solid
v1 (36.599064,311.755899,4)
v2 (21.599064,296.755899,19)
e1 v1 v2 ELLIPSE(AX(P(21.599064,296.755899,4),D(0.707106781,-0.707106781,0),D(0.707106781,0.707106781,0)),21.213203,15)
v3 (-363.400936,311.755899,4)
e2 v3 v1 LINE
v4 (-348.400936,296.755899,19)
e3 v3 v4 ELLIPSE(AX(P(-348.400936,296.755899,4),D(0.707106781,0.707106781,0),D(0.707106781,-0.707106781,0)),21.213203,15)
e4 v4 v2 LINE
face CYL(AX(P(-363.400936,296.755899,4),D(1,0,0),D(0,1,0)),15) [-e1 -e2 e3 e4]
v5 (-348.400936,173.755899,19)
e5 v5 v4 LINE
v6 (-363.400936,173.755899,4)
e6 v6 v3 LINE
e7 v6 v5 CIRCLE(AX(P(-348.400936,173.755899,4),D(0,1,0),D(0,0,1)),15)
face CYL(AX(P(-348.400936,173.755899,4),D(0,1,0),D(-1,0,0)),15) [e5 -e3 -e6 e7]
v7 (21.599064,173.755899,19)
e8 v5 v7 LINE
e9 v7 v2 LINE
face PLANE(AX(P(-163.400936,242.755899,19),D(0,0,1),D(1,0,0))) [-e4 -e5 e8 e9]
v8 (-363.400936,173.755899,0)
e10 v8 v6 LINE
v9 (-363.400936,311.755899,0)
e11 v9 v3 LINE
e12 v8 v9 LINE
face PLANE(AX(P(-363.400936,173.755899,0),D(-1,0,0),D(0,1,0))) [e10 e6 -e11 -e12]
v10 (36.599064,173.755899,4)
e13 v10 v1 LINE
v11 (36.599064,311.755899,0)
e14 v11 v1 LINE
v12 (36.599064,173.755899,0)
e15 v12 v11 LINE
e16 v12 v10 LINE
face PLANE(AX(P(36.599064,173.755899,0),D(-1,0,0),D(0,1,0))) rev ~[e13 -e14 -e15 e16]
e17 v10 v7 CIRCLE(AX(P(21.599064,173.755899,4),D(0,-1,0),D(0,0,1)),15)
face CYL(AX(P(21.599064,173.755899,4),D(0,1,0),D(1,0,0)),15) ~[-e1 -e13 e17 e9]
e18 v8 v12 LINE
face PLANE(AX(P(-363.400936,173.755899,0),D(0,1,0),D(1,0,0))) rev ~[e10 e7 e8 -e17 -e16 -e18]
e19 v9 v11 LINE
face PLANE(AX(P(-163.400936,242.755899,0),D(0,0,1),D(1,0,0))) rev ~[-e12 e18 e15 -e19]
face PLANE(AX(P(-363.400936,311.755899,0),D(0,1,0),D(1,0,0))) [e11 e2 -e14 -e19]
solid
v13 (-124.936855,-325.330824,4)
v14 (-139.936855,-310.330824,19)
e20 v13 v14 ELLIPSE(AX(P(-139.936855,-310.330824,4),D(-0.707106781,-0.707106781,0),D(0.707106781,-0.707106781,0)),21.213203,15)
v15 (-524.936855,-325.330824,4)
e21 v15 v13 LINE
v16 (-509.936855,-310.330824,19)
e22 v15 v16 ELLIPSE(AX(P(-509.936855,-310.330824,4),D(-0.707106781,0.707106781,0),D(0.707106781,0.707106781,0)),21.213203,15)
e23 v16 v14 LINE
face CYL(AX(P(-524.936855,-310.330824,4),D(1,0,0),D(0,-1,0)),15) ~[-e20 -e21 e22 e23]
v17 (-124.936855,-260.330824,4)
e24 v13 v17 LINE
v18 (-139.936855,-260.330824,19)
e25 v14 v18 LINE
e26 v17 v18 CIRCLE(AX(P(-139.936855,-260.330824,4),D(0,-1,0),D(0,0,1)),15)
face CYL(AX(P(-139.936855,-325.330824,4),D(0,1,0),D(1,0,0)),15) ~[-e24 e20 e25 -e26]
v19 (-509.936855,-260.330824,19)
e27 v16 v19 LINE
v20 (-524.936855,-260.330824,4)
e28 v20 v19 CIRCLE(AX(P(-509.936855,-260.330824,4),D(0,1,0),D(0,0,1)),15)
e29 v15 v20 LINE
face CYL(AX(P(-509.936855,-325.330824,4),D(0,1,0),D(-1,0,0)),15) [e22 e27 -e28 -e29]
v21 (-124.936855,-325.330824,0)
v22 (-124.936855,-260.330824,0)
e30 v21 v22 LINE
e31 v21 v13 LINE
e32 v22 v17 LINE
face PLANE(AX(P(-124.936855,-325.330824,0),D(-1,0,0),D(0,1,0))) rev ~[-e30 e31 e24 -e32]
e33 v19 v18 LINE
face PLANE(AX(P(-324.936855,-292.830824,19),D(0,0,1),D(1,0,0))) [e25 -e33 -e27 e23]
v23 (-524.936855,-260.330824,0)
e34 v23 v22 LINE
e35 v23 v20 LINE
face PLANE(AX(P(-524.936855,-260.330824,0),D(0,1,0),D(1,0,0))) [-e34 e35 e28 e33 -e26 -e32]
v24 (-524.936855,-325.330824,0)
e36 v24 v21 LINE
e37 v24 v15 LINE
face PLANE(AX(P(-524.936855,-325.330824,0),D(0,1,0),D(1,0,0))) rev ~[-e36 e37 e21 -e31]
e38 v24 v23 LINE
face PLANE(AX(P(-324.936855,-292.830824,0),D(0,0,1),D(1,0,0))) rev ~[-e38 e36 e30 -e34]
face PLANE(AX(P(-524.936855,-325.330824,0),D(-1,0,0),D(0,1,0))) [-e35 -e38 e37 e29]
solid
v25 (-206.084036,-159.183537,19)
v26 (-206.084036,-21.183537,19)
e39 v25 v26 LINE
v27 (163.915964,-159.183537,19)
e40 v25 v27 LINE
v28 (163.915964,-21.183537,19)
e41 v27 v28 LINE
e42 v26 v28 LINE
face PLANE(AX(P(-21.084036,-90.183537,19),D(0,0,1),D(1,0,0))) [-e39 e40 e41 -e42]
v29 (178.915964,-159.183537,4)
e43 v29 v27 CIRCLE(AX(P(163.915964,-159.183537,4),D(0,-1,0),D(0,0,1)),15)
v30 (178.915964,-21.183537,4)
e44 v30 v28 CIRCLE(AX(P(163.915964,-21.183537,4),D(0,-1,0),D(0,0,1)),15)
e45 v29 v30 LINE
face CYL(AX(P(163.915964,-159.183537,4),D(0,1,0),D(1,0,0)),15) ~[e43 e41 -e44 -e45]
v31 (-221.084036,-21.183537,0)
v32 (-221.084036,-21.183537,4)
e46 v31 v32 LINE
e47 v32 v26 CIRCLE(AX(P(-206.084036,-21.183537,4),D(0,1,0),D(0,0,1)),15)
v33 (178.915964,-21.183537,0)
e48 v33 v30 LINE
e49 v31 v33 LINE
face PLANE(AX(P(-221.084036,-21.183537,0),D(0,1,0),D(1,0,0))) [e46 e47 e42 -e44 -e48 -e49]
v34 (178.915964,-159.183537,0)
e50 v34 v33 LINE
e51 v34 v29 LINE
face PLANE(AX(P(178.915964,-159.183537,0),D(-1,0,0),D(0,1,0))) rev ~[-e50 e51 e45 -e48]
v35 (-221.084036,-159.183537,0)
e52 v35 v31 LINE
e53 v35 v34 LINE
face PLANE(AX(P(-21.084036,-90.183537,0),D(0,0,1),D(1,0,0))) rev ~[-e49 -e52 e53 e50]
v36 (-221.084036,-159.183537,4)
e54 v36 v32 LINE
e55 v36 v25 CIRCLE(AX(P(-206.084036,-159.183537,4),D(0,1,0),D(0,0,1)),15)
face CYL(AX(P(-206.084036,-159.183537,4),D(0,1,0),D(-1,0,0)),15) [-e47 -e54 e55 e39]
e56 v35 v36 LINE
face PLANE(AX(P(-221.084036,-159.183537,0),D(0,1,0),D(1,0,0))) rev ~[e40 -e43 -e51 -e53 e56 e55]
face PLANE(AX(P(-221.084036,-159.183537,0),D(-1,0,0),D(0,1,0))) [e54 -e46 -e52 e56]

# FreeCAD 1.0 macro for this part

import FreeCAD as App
import Part
import Sketcher
from FreeCAD import Vector
Q = App.Units.Quantity


def edges_at(feature, points):
    """Names of the edges that pass closest to the given points."""
    edges = feature.Shape.Edges
    near = lambda p: min(range(len(edges)), key=lambda i: edges[i].distToShape(Part.Vertex(*p))[0])
    return sorted({f"Edge{near(p) + 1}" for p in points})


def add_polygon(sketch, points):
    """Adds a closed chain of lines whose ends are joined by coincident constraints."""
    first, n = sketch.GeometryCount, len(points)
    for a, b in zip(points, points[1:] + points[:1]):
        sketch.addGeometry(Part.LineSegment(App.Vector(*a, 0), App.Vector(*b, 0)), False)
    for i in range(n):
        sketch.addConstraint(Sketcher.Constraint("Coincident", first + i, 2, first + (i + 1) % n, 1))

doc = App.newDocument("Part")
params = doc.addObject("Spreadsheet::Sheet", "Params")
for row, (alias, value) in enumerate([
    ("sketch1_width", "400 mm"),
    ("sketch1_height", "138 mm"),
    ("sketch1_height2", "65 mm"),
    ("pad1_length", "19 mm"),
    ("fillet_radius", "15 mm"),
], start=1):
    params.set(f"A{row}", alias)
    params.set(f"B{row}", "=" + value)
    params.setAlias(f"B{row}", alias)

body = doc.addObject("PartDesign::Body", "Body")
body.AllowCompound = True

# Sketch on XY plane
sketch1 = body.newObject("Sketcher::SketchObject", "Sketch")
sketch1.AttachmentSupport = (doc.getObject("XY_Plane"), [""])
sketch1.MapMode = "FlatFace"
add_polygon(sketch1, [(-221, -21), (-221, -159), (179, -159), (179, -21)])  # lines 0-3
add_polygon(sketch1, [(-363, 312), (-363, 174), (37, 174), (37, 312)])  # lines 4-7
add_polygon(sketch1, [(-525, -260), (-525, -325), (-125, -325), (-125, -260)])  # lines 8-11
sketch1.addConstraint([
    Sketcher.Constraint("Vertical", 0),
    Sketcher.Constraint("Horizontal", 1),
    Sketcher.Constraint("Vertical", 2),
    Sketcher.Constraint("Horizontal", 3),
    Sketcher.Constraint("Vertical", 4),
    Sketcher.Constraint("Horizontal", 5),
    Sketcher.Constraint("Vertical", 6),
    Sketcher.Constraint("Horizontal", 7),
    Sketcher.Constraint("Vertical", 8),
    Sketcher.Constraint("Horizontal", 9),
    Sketcher.Constraint("Vertical", 10),
    Sketcher.Constraint("Horizontal", 11),
    Sketcher.Constraint("Equal", 3, 5),
    Sketcher.Constraint("Equal", 7, 9),
    Sketcher.Constraint("Equal", 2, 4),
    Sketcher.Constraint("DistanceX", 1, 1, 1, 2, Q("400 mm")),
    Sketcher.Constraint("DistanceY", 0, 2, 0, 1, Q("138 mm")),
    Sketcher.Constraint("DistanceY", 8, 2, 8, 1, Q("65 mm")),
    Sketcher.Constraint("DistanceY", -1, 1, 4, 2, Q("173.755899 mm")),
    Sketcher.Constraint("DistanceX", 4, 2, 3, 2, Q("142.3169 mm")),
    Sketcher.Constraint("DistanceX", 8, 2, 0, 2, Q("303.852819 mm")),
    Sketcher.Constraint("DistanceX", 0, 2, -1, 1, Q("221.084036 mm")),
    Sketcher.Constraint("DistanceY", 0, 2, -1, 1, Q("159.183537 mm")),
    Sketcher.Constraint("DistanceY", 8, 2, -1, 1, Q("325.330824 mm")),
])
sketch1.setExpression("Constraints[27]", "Params.sketch1_width")
sketch1.setExpression("Constraints[28]", "Params.sketch1_height")
sketch1.setExpression("Constraints[29]", "Params.sketch1_height2")
pad1 = body.newObject("PartDesign::Pad", "Pad")
pad1.Profile = sketch1
pad1.setExpression("Length", "Params.pad1_length")
doc.recompute()

fillet = body.newObject("PartDesign::Fillet", "Fillet")
fillet.Base = (pad1, edges_at(pad1, [
    (-324.937, -325.331, 19),
    (-124.937, -292.831, 19),
    (-524.937, -292.831, 19),
    (-221.084, -90.184, 19),
    (178.916, -90.184, 19),
    (36.599, 242.756, 19),
    (-163.401, 311.756, 19),
    (-363.401, 242.756, 19),
]))
fillet.setExpression("Radius", "Params.fillet_radius")

doc.recompute()
